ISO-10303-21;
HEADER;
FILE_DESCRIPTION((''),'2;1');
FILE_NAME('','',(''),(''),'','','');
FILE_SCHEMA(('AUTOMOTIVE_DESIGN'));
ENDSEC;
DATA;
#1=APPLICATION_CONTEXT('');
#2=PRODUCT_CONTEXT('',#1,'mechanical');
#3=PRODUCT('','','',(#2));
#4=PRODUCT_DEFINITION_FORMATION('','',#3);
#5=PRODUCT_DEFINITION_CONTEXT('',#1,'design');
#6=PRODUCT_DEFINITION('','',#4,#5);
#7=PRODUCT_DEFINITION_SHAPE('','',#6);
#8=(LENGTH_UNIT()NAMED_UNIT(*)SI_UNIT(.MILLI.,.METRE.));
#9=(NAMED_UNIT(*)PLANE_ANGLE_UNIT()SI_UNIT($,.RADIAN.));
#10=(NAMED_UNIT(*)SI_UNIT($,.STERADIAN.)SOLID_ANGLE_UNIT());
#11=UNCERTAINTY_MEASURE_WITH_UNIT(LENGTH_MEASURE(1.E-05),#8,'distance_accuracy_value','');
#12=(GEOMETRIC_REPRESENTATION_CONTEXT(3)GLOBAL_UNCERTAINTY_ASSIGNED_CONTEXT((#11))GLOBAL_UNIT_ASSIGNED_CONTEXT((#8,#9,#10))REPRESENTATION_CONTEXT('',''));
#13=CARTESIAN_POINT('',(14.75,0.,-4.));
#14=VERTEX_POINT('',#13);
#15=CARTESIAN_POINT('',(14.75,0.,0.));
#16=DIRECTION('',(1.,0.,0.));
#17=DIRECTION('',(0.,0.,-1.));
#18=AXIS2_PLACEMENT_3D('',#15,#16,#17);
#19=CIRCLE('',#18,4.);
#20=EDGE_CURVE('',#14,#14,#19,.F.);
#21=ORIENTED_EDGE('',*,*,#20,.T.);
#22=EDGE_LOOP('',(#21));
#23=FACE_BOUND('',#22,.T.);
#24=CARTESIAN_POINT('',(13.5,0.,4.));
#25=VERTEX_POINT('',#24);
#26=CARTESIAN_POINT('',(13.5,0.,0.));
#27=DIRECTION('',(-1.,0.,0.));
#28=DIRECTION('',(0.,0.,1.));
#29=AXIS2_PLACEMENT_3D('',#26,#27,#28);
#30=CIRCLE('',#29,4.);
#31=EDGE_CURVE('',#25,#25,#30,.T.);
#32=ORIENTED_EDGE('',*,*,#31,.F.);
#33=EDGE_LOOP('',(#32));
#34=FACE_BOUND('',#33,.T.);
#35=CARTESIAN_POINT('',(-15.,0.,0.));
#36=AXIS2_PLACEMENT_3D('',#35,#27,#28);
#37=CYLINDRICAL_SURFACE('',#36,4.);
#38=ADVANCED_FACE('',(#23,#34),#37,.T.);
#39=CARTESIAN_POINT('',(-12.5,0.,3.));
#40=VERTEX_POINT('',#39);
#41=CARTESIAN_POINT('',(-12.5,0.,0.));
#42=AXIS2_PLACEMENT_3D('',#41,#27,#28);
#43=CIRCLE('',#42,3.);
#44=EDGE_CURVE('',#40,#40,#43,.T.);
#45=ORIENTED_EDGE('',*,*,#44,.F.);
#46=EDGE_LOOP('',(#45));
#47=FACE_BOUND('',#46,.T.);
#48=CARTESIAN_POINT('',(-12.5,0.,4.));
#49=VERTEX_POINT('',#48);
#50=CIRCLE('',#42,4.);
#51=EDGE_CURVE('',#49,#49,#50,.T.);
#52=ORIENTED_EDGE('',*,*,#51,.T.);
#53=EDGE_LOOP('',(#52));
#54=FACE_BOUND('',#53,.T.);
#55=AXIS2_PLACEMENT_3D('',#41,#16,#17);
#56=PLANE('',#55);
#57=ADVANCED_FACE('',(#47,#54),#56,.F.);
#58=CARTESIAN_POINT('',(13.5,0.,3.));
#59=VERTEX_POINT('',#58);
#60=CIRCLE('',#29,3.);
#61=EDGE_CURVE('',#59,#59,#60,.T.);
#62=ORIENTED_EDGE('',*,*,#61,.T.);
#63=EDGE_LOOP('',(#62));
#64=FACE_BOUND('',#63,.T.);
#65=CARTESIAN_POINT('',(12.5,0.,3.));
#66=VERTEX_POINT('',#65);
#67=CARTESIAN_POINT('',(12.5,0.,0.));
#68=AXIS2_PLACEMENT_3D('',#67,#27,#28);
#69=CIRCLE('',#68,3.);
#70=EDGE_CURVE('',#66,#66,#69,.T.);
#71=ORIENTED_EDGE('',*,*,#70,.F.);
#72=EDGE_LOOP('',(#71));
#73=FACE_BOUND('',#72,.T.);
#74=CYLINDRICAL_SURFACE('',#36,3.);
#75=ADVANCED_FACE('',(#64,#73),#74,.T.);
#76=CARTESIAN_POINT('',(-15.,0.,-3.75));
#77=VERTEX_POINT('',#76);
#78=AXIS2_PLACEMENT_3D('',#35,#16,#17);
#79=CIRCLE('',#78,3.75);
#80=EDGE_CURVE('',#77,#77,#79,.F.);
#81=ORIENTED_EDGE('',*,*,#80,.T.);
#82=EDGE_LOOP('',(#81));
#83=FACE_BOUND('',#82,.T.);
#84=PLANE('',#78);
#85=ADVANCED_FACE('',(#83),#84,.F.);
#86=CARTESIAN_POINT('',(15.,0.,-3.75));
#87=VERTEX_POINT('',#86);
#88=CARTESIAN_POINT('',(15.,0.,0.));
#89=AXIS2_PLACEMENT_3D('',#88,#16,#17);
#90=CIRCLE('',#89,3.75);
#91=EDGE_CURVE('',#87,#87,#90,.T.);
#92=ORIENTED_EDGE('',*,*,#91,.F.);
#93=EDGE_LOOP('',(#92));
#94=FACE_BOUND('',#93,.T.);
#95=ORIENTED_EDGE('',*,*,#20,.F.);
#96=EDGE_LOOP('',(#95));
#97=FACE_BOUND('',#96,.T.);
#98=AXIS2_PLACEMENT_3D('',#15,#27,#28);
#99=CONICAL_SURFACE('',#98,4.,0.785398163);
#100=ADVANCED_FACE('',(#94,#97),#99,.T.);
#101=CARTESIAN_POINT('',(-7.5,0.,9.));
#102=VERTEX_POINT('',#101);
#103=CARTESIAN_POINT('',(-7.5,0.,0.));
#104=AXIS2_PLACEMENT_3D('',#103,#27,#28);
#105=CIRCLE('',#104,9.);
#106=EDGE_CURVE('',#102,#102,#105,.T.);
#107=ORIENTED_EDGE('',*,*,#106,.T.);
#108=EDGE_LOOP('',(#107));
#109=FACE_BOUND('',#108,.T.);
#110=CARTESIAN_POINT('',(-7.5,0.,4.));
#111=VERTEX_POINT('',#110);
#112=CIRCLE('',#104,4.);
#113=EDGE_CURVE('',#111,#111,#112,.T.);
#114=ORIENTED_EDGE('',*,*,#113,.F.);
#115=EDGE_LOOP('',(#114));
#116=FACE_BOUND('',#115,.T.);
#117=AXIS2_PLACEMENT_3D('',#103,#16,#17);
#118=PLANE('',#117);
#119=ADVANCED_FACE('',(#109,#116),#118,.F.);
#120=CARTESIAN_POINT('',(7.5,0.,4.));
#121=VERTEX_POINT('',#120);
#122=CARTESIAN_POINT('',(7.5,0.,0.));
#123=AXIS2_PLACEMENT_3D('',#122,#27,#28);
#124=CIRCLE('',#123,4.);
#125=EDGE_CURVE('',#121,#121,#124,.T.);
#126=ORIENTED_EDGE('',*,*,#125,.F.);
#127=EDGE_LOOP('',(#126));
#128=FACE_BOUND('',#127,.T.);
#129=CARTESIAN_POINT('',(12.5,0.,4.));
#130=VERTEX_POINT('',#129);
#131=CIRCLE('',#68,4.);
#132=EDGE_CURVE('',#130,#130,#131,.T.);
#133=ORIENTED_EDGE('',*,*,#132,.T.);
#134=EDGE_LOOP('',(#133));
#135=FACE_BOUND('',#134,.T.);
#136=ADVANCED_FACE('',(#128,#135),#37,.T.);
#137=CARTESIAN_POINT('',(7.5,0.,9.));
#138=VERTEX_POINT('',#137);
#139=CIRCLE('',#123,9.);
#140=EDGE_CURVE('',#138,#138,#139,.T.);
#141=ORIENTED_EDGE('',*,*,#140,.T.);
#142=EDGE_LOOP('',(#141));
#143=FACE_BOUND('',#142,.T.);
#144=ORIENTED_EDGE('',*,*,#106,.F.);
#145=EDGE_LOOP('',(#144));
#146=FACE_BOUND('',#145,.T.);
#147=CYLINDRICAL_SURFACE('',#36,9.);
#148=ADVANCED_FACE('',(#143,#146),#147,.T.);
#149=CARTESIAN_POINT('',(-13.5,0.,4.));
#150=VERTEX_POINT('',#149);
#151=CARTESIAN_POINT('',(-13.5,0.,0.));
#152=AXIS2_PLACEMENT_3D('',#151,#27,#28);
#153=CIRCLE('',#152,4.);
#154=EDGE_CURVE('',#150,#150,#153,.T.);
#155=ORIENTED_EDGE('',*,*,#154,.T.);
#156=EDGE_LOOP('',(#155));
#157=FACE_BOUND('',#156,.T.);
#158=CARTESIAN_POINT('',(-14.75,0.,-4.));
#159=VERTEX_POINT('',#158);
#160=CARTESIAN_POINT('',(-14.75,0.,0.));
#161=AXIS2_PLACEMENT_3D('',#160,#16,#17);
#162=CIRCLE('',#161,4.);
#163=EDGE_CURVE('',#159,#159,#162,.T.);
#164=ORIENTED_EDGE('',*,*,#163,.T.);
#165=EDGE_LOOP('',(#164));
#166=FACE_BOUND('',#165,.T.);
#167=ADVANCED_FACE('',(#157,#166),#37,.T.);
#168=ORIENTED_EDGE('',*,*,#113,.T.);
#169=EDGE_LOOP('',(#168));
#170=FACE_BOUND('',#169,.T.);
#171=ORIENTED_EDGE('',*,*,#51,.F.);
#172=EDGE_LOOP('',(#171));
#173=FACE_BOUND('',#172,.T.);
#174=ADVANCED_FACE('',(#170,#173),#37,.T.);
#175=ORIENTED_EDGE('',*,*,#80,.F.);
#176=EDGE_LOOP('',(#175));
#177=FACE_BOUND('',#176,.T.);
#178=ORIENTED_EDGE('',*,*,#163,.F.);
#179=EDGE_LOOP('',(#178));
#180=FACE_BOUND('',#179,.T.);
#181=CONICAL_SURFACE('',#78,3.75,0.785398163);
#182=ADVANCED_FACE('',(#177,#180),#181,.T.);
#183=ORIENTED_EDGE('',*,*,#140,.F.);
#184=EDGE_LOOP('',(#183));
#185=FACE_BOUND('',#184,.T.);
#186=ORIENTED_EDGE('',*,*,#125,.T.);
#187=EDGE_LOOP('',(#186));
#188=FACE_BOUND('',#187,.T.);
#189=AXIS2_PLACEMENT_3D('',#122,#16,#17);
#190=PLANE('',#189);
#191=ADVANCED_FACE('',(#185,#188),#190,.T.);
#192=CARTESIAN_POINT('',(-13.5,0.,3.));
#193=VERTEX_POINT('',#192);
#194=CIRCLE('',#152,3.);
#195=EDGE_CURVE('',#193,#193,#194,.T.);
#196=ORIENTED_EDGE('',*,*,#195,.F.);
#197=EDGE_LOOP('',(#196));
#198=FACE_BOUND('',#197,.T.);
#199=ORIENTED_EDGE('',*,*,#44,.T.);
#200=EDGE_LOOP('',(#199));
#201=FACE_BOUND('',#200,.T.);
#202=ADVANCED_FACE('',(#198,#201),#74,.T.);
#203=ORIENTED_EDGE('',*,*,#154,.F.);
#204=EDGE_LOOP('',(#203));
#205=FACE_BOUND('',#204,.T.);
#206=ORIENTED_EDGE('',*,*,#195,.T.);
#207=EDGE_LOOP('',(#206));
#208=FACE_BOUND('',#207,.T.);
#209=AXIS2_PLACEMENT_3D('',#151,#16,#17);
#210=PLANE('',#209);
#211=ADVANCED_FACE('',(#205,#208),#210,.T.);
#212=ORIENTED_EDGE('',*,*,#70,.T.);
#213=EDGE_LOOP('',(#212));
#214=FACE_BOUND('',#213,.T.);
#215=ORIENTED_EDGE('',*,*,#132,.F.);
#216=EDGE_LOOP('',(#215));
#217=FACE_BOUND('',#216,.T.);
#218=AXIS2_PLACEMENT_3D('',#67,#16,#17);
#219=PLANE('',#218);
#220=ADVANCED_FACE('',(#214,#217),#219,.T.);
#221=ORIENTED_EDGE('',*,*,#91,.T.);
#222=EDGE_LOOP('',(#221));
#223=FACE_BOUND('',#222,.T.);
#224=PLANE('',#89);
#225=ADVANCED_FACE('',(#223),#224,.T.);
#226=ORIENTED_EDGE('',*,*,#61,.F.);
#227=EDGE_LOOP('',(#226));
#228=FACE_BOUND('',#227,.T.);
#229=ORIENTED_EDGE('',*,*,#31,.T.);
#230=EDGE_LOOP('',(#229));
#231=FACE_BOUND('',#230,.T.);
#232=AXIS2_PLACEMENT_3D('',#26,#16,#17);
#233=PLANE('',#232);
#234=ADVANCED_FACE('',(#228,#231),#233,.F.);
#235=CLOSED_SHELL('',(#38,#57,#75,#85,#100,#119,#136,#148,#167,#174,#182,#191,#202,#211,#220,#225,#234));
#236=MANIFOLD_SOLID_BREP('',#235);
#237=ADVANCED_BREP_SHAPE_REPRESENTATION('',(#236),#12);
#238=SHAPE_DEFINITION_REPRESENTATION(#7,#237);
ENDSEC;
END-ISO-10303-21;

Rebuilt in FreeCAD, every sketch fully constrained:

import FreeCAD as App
import Part
import Sketcher
Q = App.Units.Quantity


def edges_at(feature, points):
    """Names of the edges that pass closest to the given points."""
    edges = feature.Shape.Edges
    near = lambda p: min(range(len(edges)), key=lambda i: edges[i].distToShape(Part.Vertex(*p))[0])
    return sorted({f"Edge{near(p) + 1}" for p in points})

doc = App.newDocument("Part")
body = doc.addObject("PartDesign::Body", "Body")

# Sketch on XY plane
sketch1 = body.newObject("Sketcher::SketchObject", "Sketch")
sketch1.AttachmentSupport = (doc.getObject("XY_Plane"), [""])
sketch1.MapMode = "FlatFace"
sketch1.addGeometry([
    Part.LineSegment(App.Vector(15, 0, 0), App.Vector(15, 4, 0)),  # 0
    Part.LineSegment(App.Vector(15, 4, 0), App.Vector(13.5, 4, 0)),  # 1
    Part.LineSegment(App.Vector(13.5, 4, 0), App.Vector(13.5, 3, 0)),  # 2
    Part.LineSegment(App.Vector(13.5, 3, 0), App.Vector(12.5, 3, 0)),  # 3
    Part.LineSegment(App.Vector(12.5, 3, 0), App.Vector(12.5, 4, 0)),  # 4
    Part.LineSegment(App.Vector(12.5, 4, 0), App.Vector(7.5, 4, 0)),  # 5
    Part.LineSegment(App.Vector(7.5, 4, 0), App.Vector(7.5, 9, 0)),  # 6
    Part.LineSegment(App.Vector(7.5, 9, 0), App.Vector(-7.5, 9, 0)),  # 7
    Part.LineSegment(App.Vector(-7.5, 9, 0), App.Vector(-7.5, 4, 0)),  # 8
    Part.LineSegment(App.Vector(-7.5, 4, 0), App.Vector(-12.5, 4, 0)),  # 9
    Part.LineSegment(App.Vector(-12.5, 4, 0), App.Vector(-12.5, 3, 0)),  # 10
    Part.LineSegment(App.Vector(-12.5, 3, 0), App.Vector(-13.5, 3, 0)),  # 11
    Part.LineSegment(App.Vector(-13.5, 3, 0), App.Vector(-13.5, 4, 0)),  # 12
    Part.LineSegment(App.Vector(-13.5, 4, 0), App.Vector(-15, 4, 0)),  # 13
    Part.LineSegment(App.Vector(-15, 4, 0), App.Vector(-15, 0, 0)),  # 14
    Part.LineSegment(App.Vector(-15, 0, 0), App.Vector(15, 0, 0)),  # 15
], False)
sketch1.addConstraint([
    Sketcher.Constraint("Coincident", 0, 2, 1, 1),
    Sketcher.Constraint("Coincident", 1, 2, 2, 1),
    Sketcher.Constraint("Coincident", 2, 2, 3, 1),
    Sketcher.Constraint("Coincident", 3, 2, 4, 1),
    Sketcher.Constraint("Coincident", 4, 2, 5, 1),
    Sketcher.Constraint("Coincident", 5, 2, 6, 1),
    Sketcher.Constraint("Coincident", 6, 2, 7, 1),
    Sketcher.Constraint("Coincident", 7, 2, 8, 1),
    Sketcher.Constraint("Coincident", 8, 2, 9, 1),
    Sketcher.Constraint("Coincident", 9, 2, 10, 1),
    Sketcher.Constraint("Coincident", 10, 2, 11, 1),
    Sketcher.Constraint("Coincident", 11, 2, 12, 1),
    Sketcher.Constraint("Coincident", 12, 2, 13, 1),
    Sketcher.Constraint("Coincident", 13, 2, 14, 1),
    Sketcher.Constraint("Coincident", 14, 2, 15, 1),
    Sketcher.Constraint("Coincident", 15, 2, 0, 1),
    Sketcher.Constraint("Vertical", 0),
    Sketcher.Constraint("Horizontal", 1),
    Sketcher.Constraint("Vertical", 2),
    Sketcher.Constraint("Horizontal", 3),
    Sketcher.Constraint("Vertical", 4),
    Sketcher.Constraint("Horizontal", 5),
    Sketcher.Constraint("Vertical", 6),
    Sketcher.Constraint("Horizontal", 7),
    Sketcher.Constraint("Vertical", 8),
    Sketcher.Constraint("Horizontal", 9),
    Sketcher.Constraint("Vertical", 10),
    Sketcher.Constraint("Horizontal", 11),
    Sketcher.Constraint("Vertical", 12),
    Sketcher.Constraint("Horizontal", 13),
    Sketcher.Constraint("Vertical", 14),
    Sketcher.Constraint("Horizontal", 15),
    Sketcher.Constraint("Symmetric", 14, 2, 15, 2, -1, 1),
    Sketcher.Constraint("Symmetric", 5, 2, 8, 2, -2),
    Sketcher.Constraint("Symmetric", 3, 2, 10, 2, -2),
    Sketcher.Constraint("Symmetric", 1, 2, 12, 2, -2),
    Sketcher.Constraint("Horizontal", 1, 2, 4, 2),
    Sketcher.Constraint("Equal", 11, 2),
    Sketcher.Constraint("Equal", 9, 6),
    Sketcher.Constraint("DistanceX", 3, 2, 3, 1, Q("1 mm")),
    Sketcher.Constraint("DistanceX", 5, 2, 5, 1, Q("5 mm")),
    Sketcher.Constraint("DistanceX", 7, 2, 7, 1, Q("15 mm")),
    Sketcher.Constraint("DistanceX", 15, 1, 15, 2, Q("30 mm")),
    Sketcher.Constraint("DistanceY", 0, 1, 0, 2, Q("4 mm")),
])
revolution = body.newObject("PartDesign::Revolution", "Revolution")
revolution.Profile = sketch1
revolution.ReferenceAxis = (sketch1, ["H_Axis"])
revolution.Angle = 360
doc.recompute()

chamfer = body.newObject("PartDesign::Chamfer", "Chamfer")
chamfer.Base = (revolution, edges_at(revolution, [(-15, 0, -4), (15, 0, -4)]))
chamfer.Size = 0.25

doc.recompute()
